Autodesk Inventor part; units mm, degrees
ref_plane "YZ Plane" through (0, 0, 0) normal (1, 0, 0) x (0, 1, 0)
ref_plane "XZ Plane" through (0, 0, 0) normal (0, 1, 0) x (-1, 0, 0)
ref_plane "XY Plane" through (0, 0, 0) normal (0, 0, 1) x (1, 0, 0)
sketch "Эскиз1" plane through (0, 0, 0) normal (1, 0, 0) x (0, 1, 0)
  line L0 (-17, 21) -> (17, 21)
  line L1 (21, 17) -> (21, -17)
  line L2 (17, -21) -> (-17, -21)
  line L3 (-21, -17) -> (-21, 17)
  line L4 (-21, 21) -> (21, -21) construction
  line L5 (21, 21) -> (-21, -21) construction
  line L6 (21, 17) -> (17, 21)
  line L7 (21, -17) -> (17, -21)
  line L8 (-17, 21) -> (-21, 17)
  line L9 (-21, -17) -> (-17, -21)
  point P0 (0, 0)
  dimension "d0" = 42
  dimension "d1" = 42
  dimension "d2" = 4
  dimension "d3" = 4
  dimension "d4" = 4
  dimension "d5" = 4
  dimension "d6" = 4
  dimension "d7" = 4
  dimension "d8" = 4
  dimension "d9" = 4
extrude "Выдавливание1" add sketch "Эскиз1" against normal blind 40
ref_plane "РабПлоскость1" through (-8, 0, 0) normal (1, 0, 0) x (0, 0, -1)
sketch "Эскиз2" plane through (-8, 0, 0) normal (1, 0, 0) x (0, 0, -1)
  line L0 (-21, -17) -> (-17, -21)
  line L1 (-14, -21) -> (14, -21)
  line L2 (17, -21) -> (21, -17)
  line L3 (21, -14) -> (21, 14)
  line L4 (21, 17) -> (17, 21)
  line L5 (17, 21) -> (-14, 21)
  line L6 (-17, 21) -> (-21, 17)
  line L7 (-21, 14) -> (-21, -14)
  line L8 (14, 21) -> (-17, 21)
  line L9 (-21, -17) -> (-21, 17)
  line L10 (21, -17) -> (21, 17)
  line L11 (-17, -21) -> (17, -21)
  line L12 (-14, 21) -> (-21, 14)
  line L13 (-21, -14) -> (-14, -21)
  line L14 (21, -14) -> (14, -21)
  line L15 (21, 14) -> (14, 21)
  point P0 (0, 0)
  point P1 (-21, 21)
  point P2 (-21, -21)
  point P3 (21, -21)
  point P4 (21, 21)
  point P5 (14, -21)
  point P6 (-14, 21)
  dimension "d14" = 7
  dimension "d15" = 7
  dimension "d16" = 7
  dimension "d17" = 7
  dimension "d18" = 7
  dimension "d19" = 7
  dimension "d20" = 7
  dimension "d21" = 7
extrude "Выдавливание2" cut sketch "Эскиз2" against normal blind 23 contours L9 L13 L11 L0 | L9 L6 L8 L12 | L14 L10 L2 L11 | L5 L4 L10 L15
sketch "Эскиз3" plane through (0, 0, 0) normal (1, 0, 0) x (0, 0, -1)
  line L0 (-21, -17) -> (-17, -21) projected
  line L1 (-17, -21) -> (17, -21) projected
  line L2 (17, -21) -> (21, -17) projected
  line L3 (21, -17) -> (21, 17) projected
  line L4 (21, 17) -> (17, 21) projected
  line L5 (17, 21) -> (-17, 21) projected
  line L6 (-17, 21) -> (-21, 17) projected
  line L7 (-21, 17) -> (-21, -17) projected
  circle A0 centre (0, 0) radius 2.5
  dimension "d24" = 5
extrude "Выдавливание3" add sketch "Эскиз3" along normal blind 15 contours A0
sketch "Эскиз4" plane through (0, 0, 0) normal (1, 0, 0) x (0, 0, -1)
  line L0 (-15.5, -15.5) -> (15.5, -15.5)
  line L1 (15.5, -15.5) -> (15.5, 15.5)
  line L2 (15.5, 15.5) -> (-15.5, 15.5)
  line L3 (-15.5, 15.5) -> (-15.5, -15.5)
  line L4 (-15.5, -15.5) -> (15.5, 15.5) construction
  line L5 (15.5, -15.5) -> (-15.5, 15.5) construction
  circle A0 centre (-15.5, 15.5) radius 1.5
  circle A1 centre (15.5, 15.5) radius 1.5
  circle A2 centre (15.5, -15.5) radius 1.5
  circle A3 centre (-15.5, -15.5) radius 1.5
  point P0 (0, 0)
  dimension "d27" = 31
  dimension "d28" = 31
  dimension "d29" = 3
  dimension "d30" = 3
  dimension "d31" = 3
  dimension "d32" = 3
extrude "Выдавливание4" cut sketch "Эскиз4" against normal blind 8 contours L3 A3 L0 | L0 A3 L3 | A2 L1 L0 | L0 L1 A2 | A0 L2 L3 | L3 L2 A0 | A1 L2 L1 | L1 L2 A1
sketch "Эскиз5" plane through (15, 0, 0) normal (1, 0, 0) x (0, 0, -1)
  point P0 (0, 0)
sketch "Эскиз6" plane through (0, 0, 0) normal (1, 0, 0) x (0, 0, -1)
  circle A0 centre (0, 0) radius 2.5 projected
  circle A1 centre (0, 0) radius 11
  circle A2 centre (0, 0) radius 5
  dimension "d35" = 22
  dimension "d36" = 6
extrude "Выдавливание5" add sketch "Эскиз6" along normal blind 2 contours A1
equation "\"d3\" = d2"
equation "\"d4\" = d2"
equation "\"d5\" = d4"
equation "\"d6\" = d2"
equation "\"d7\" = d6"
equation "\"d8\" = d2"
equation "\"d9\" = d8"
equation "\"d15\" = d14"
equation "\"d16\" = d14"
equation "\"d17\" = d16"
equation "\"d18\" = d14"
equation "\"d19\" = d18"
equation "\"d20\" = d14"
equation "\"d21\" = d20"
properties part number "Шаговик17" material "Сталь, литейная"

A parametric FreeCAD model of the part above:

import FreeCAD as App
import Part
import Sketcher

V = App.Vector
Q = App.Units.Quantity


def add_polygon(sketch, points):
    """Adds a closed chain of lines whose ends are joined by coincident constraints."""
    first, n = sketch.GeometryCount, len(points)
    for a, b in zip(points, points[1:] + points[:1]):
        sketch.addGeometry(Part.LineSegment(App.Vector(*a, 0), App.Vector(*b, 0)), False)
    for i in range(n):
        sketch.addConstraint(Sketcher.Constraint("Coincident", first + i, 2, first + (i + 1) % n, 1))

doc = App.newDocument("Part")
body = doc.addObject("PartDesign::Body", "Body")

sketch1 = body.newObject("Sketcher::SketchObject", "Sketch")
sketch1.AttachmentSupport = (doc.getObject("YZ_Plane"), [""])
sketch1.MapMode = "FlatFace"
add_polygon(sketch1, [(17, 21), (-17, 21), (-21, 17), (-21, -17), (-17, -21), (17, -21), (21, -17), (21, 17)])
sketch1.addConstraint(Sketcher.Constraint("Horizontal", 0))
sketch1.addConstraint(Sketcher.Constraint("Vertical", 2))
sketch1.addConstraint(Sketcher.Constraint("Horizontal", 4))
sketch1.addConstraint(Sketcher.Constraint("Vertical", 6))
sketch1.addConstraint(Sketcher.Constraint("Symmetric", 0, 2, 4, 2, -1, 1))
sketch1.addConstraint(Sketcher.Constraint("Symmetric", 1, 2, 5, 2, -1, 1))
sketch1.addConstraint(Sketcher.Constraint("Perpendicular", 1, 3))
sketch1.addConstraint(Sketcher.Constraint("Perpendicular", 5, 7))
sketch1.addConstraint(Sketcher.Constraint("Horizontal", 2, 2, 5, 2))
sketch1.addConstraint(Sketcher.Constraint("Horizontal", 1, 2, 6, 2))
sketch1.addConstraint(Sketcher.Constraint("Vertical", 0, 2, 3, 2))
sketch1.addConstraint(Sketcher.Constraint("Equal", 4, 2))
sketch1.addConstraint(Sketcher.Constraint("DistanceX", 1, 2, 0, 2, Q("4 mm")))
sketch1.addConstraint(Sketcher.Constraint("DistanceY", 3, 2, 0, 2, Q("42 mm")))
pad1 = body.newObject("PartDesign::Pad", "Pad")
pad1.Profile = sketch1
pad1.Length = 40
pad1.Reversed = True

sketch2 = body.newObject("Sketcher::SketchObject", "Sketch001")
sketch2.AttachmentSupport = (doc.getObject("YZ_Plane"), [""])
sketch2.MapMode = "FlatFace"
sketch2.AttachmentOffset = App.Placement(V(0, 0, -8), App.Rotation())
add_polygon(sketch2, [(-14, 21), (-17, 21), (-21, 17), (-21, 14)])
add_polygon(sketch2, [(17, 21), (14, 21), (21, 14), (21, 17)])
add_polygon(sketch2, [(-14, -21), (-21, -14), (-21, -17), (-17, -21)])
add_polygon(sketch2, [(21, -17), (21, -14), (14, -21), (17, -21)])
sketch2.addConstraint(Sketcher.Constraint("Horizontal", 0))
sketch2.addConstraint(Sketcher.Constraint("Vertical", 2))
sketch2.addConstraint(Sketcher.Constraint("Horizontal", 4))
sketch2.addConstraint(Sketcher.Constraint("Vertical", 6))
sketch2.addConstraint(Sketcher.Constraint("Vertical", 9))
sketch2.addConstraint(Sketcher.Constraint("Horizontal", 11))
sketch2.addConstraint(Sketcher.Constraint("Vertical", 12))
sketch2.addConstraint(Sketcher.Constraint("Horizontal", 14))
sketch2.addConstraint(Sketcher.Constraint("Symmetric", 5, 2, 8, 2, -1, 1))
sketch2.addConstraint(Sketcher.Constraint("Symmetric", 7, 2, 10, 2, -1, 1))
sketch2.addConstraint(Sketcher.Constraint("Symmetric", 2, 2, 12, 2, -1, 1))
sketch2.addConstraint(Sketcher.Constraint("Symmetric", 3, 2, 13, 2, -1, 1))
sketch2.addConstraint(Sketcher.Constraint("Symmetric", 3, 2, 4, 2, -2))
sketch2.addConstraint(Sketcher.Constraint("Symmetric", 2, 2, 5, 2, -2))
sketch2.addConstraint(Sketcher.Constraint("Parallel", 1, 3))
sketch2.addConstraint(Sketcher.Constraint("Perpendicular", 3, 5))
sketch2.addConstraint(Sketcher.Constraint("Parallel", 5, 7))
sketch2.addConstraint(Sketcher.Constraint("Parallel", 7, 8))
sketch2.addConstraint(Sketcher.Constraint("Parallel", 8, 10))
sketch2.addConstraint(Sketcher.Constraint("Parallel", 13, 15))
sketch2.addConstraint(Sketcher.Constraint("Horizontal", 1, 2, 6, 2))
sketch2.addConstraint(Sketcher.Constraint("Horizontal", 9, 2, 15, 2))
sketch2.addConstraint(Sketcher.Constraint("DistanceY", 2, 2, 0, 2, Q("7 mm")))
sketch2.addConstraint(Sketcher.Constraint("DistanceX", 0, 2, 0, 1, Q("3 mm")))
sketch2.addConstraint(Sketcher.Constraint("DistanceX", 0, 2, -1, 1, Q("17 mm")))
sketch2.addConstraint(Sketcher.Constraint("DistanceY", -1, 1, 0, 2, Q("21 mm")))
pocket1 = body.newObject("PartDesign::Pocket", "Pocket")
pocket1.Profile = sketch2
pocket1.Length = 23

sketch3 = body.newObject("Sketcher::SketchObject", "Sketch002")
sketch3.AttachmentSupport = (doc.getObject("YZ_Plane"), [""])
sketch3.MapMode = "FlatFace"
sketch3.addGeometry(Part.Circle(V(0, 0, 0), V(0, 0, 1), 2.5), False)
sketch3.addConstraint(Sketcher.Constraint("Coincident", 0, 3, -1, 1))
sketch3.addConstraint(Sketcher.Constraint("Diameter", 0, Q("5 mm")))
pad2 = body.newObject("PartDesign::Pad", "Pad001")
pad2.Profile = sketch3
pad2.Length = 15

sketch4 = body.newObject("Sketcher::SketchObject", "Sketch003")
sketch4.AttachmentSupport = (doc.getObject("YZ_Plane"), [""])
sketch4.MapMode = "FlatFace"
sketch4.addGeometry(Part.Circle(V(-15.5, 15.5, 0), V(0, 0, 1), 1.5), False)
sketch4.addGeometry(Part.Circle(V(-15.5, -15.5, 0), V(0, 0, 1), 1.5), False)
sketch4.addGeometry(Part.Circle(V(15.5, 15.5, 0), V(0, 0, 1), 1.5), False)
sketch4.addGeometry(Part.Circle(V(15.5, -15.5, 0), V(0, 0, 1), 1.5), False)
sketch4.addConstraint(Sketcher.Constraint("Equal", 0, 1))
sketch4.addConstraint(Sketcher.Constraint("Equal", 1, 2))
sketch4.addConstraint(Sketcher.Constraint("Equal", 2, 3))
sketch4.addConstraint(Sketcher.Constraint("Symmetric", 1, 3, 2, 3, -1, 1))
sketch4.addConstraint(Sketcher.Constraint("Symmetric", 0, 3, 3, 3, -1, 1))
sketch4.addConstraint(Sketcher.Constraint("Symmetric", 0, 3, 2, 3, -2))
sketch4.addConstraint(Sketcher.Constraint("Diameter", 0, Q("3 mm")))
sketch4.addConstraint(Sketcher.Constraint("DistanceY", 1, 3, 0, 3, Q("31 mm")))
sketch4.addConstraint(Sketcher.Constraint("DistanceX", 0, 3, 2, 3, Q("31 mm")))
pocket2 = body.newObject("PartDesign::Pocket", "Pocket001")
pocket2.Profile = sketch4
pocket2.Length = 8

sketch5 = body.newObject("Sketcher::SketchObject", "Sketch004")
sketch5.AttachmentSupport = (doc.getObject("YZ_Plane"), [""])
sketch5.MapMode = "FlatFace"
sketch5.addGeometry(Part.Circle(V(0, 0, 0), V(0, 0, 1), 11), False)
sketch5.addGeometry(Part.Circle(V(0, 0, 0), V(0, 0, 1), 5), False)
sketch5.addConstraint(Sketcher.Constraint("Coincident", 0, 3, -1, 1))
sketch5.addConstraint(Sketcher.Constraint("Coincident", 1, 3, -1, 1))
sketch5.addConstraint(Sketcher.Constraint("Diameter", 0, Q("22 mm")))
sketch5.addConstraint(Sketcher.Constraint("Diameter", 1, Q("10 mm")))
pad3 = body.newObject("PartDesign::Pad", "Pad002")
pad3.Profile = sketch5
pad3.Length = 2

doc.recompute()
